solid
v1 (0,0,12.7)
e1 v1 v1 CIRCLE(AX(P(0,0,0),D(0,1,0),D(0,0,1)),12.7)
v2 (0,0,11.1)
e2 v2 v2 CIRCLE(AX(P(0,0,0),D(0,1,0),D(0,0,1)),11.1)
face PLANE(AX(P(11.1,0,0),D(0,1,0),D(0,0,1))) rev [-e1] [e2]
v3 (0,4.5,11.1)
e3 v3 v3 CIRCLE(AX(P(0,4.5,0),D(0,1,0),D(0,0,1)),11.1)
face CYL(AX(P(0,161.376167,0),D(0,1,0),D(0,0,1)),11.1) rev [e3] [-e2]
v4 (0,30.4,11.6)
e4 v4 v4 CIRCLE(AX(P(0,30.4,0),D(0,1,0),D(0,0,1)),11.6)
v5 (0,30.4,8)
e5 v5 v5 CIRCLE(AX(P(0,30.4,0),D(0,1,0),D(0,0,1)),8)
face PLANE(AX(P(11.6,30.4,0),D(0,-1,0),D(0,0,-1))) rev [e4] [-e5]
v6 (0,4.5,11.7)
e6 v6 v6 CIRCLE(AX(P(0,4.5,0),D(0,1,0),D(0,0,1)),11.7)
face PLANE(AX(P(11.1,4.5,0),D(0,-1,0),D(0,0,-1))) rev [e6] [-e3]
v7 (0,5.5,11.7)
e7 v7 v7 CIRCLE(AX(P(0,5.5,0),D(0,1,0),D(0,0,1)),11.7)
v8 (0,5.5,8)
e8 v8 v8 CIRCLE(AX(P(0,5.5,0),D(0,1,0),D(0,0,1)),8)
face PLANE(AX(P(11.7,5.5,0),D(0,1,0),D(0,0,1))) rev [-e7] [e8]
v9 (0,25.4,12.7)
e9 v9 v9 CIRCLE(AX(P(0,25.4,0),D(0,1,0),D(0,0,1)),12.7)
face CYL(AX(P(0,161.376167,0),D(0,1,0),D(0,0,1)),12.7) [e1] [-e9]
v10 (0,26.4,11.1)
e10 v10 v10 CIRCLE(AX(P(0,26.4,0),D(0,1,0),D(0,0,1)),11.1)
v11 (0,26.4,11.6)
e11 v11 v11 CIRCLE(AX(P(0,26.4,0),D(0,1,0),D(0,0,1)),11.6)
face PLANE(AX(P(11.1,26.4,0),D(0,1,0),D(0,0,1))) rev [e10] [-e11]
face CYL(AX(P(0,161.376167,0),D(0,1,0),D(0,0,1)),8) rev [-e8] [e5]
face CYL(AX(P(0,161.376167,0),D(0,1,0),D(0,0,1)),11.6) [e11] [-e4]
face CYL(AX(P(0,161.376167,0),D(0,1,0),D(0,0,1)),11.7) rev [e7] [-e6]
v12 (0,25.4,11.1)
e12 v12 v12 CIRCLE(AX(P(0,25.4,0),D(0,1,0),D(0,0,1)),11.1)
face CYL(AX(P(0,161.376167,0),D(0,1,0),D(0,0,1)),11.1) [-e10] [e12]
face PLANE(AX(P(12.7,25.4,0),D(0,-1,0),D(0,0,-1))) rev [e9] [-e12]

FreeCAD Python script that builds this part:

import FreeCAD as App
import Part
import Sketcher
from FreeCAD import Vector


def add_polygon(sketch, points):
    """Adds a closed chain of lines whose ends are joined by coincident constraints."""
    first, n = sketch.GeometryCount, len(points)
    for a, b in zip(points, points[1:] + points[:1]):
        sketch.addGeometry(Part.LineSegment(App.Vector(*a, 0), App.Vector(*b, 0)), False)
    for i in range(n):
        sketch.addConstraint(Sketcher.Constraint("Coincident", first + i, 2, first + (i + 1) % n, 1))

doc = App.newDocument("Part")
body = doc.addObject("PartDesign::Body", "Body")

# Sketch on XY plane
sketch1 = doc.addObject("Sketcher::SketchObject", "Sketch")
body.addObject(sketch1)
sketch1.AttachmentSupport = (doc.XY_Plane, [""])
sketch1.MapMode = "FlatFace"
add_polygon(sketch1, [(11.1, 4.5), (11.1, 0), (12.7, 0), (12.7, 25.4), (11.1, 25.4), (11.1, 26.4), (11.6, 26.4), (11.6, 30.4), (8, 30.4), (8, 5.5), (11.7, 5.5), (11.7, 4.5)])  # lines 0-11
sketch1.addConstraint(Sketcher.Constraint("Vertical", 0))
sketch1.addConstraint(Sketcher.Constraint("Horizontal", 1))
sketch1.addConstraint(Sketcher.Constraint("Vertical", 2))
sketch1.addConstraint(Sketcher.Constraint("Horizontal", 3))
sketch1.addConstraint(Sketcher.Constraint("Vertical", 4))
sketch1.addConstraint(Sketcher.Constraint("Horizontal", 5))
sketch1.addConstraint(Sketcher.Constraint("Vertical", 6))
sketch1.addConstraint(Sketcher.Constraint("Horizontal", 7))
sketch1.addConstraint(Sketcher.Constraint("Vertical", 8))
sketch1.addConstraint(Sketcher.Constraint("Horizontal", 9))
sketch1.addConstraint(Sketcher.Constraint("Vertical", 10))
sketch1.addConstraint(Sketcher.Constraint("Horizontal", 11))
sketch1.addConstraint(Sketcher.Constraint("PointOnObject", 0, 2, -1))
sketch1.addConstraint(Sketcher.Constraint("Vertical", 0, 2, 3, 2))
sketch1.addConstraint(Sketcher.Constraint("Equal", 4, 10))
sketch1.addConstraint(Sketcher.Constraint("DistanceY", 4, 1, 4, 2, 1.0))
sketch1.addConstraint(Sketcher.Constraint("DistanceY", 6, 1, 6, 2, 4.0))
sketch1.addConstraint(Sketcher.Constraint("DistanceX", 1, 1, 1, 2, 1.6))
sketch1.addConstraint(Sketcher.Constraint("DistanceX", 5, 1, 5, 2, 0.5))
sketch1.addConstraint(Sketcher.Constraint("DistanceX", 7, 2, 7, 1, 3.6))
sketch1.addConstraint(Sketcher.Constraint("DistanceX", 9, 1, 9, 2, 3.7))
sketch1.addConstraint(Sketcher.Constraint("DistanceY", 0, 2, 0, 1, 4.5))
sketch1.addConstraint(Sketcher.Constraint("DistanceY", 2, 1, 2, 2, 25.4))
sketch1.addConstraint(Sketcher.Constraint("DistanceX", -1, 1, 7, 2, 8.0))
revolution = doc.addObject("PartDesign::Revolution", "Revolution")
body.addObject(revolution)
revolution.Profile = sketch1
revolution.ReferenceAxis = (sketch1, ["V_Axis"])
revolution.Angle = 360

doc.recompute()
